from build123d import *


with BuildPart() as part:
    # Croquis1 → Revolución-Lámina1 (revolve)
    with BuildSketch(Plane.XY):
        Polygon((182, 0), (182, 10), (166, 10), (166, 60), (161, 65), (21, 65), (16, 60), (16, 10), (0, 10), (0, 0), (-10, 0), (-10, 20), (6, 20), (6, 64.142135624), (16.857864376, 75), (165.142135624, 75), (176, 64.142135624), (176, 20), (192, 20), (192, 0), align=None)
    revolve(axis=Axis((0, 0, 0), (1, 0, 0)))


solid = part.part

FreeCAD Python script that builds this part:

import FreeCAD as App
import Part
import Sketcher


def add_polygon(sketch, points):
    """Adds a closed chain of lines whose ends are joined by coincident constraints."""
    first, n = sketch.GeometryCount, len(points)
    for a, b in zip(points, points[1:] + points[:1]):
        sketch.addGeometry(Part.LineSegment(App.Vector(*a, 0), App.Vector(*b, 0)), False)
    for i in range(n):
        sketch.addConstraint(Sketcher.Constraint("Coincident", first + i, 2, first + (i + 1) % n, 1))

doc = App.newDocument("Part")
params = doc.addObject("Spreadsheet::Sheet", "Params")
for row, (alias, value) in enumerate([
    ("sketch1_width", "10 mm"),
    ("sketch1_width2", "16 mm"),
    ("sketch1_width3", "140 mm"),
    ("sketch1_height", "20 mm"),
    ("sketch1_height2", "50 mm"),
    ("revolution_angle", "360 deg"),
], start=1):
    params.set(f"A{row}", alias)
    params.set(f"B{row}", "=" + value)
    params.setAlias(f"B{row}", alias)

body = doc.addObject("PartDesign::Body", "Body")

sketch1 = body.newObject("Sketcher::SketchObject", "Sketch")
sketch1.AttachmentSupport = (doc.getObject("XY_Plane"), [""])
sketch1.MapMode = "FlatFace"
add_polygon(sketch1, [(182, 10), (182, 0), (192, 0), (192, 20), (176, 20), (176, 64), (165, 75), (17, 75), (6, 64), (6, 20), (-10, 20), (-10, 0), (0, 0), (0, 10), (16, 10), (16, 60), (21, 65), (161, 65), (166, 60), (166, 10)])
sketch1.addConstraint([
    Sketcher.Constraint("Vertical", 0),
    Sketcher.Constraint("Horizontal", 1),
    Sketcher.Constraint("Vertical", 2),
    Sketcher.Constraint("Horizontal", 3),
    Sketcher.Constraint("Vertical", 4),
    Sketcher.Constraint("Horizontal", 6),
    Sketcher.Constraint("Vertical", 8),
    Sketcher.Constraint("Horizontal", 9),
    Sketcher.Constraint("Vertical", 10),
    Sketcher.Constraint("Horizontal", 11),
    Sketcher.Constraint("Vertical", 12),
    Sketcher.Constraint("Horizontal", 13),
    Sketcher.Constraint("Vertical", 14),
    Sketcher.Constraint("Horizontal", 16),
    Sketcher.Constraint("Vertical", 18),
    Sketcher.Constraint("Horizontal", 19),
    Sketcher.Constraint("Coincident", 11, 2, -1, 1),
    Sketcher.Constraint("PointOnObject", 0, 2, -1),
    Sketcher.Constraint("Perpendicular", 5, 7),
    Sketcher.Constraint("Parallel", 7, 15),
    Sketcher.Constraint("Perpendicular", 15, 17),
    Sketcher.Constraint("Horizontal", 4, 2, 7, 2),
    Sketcher.Constraint("Horizontal", 3, 2, 8, 2),
    Sketcher.Constraint("Horizontal", 14, 2, 17, 2),
    Sketcher.Constraint("Horizontal", 13, 2, 18, 2),
    Sketcher.Constraint("Equal", 3, 9),
    Sketcher.Constraint("Equal", 1, 11),
    Sketcher.Constraint("Equal", 9, 13),
    Sketcher.Constraint("Equal", 13, 19),
    Sketcher.Constraint("Equal", 11, 0),
    Sketcher.Constraint("Equal", 5, 7),
    Sketcher.Constraint("DistanceX", 1, 1, 1, 2, 10.0),
    Sketcher.Constraint("DistanceX", 3, 2, 3, 1, 16.0),
    Sketcher.Constraint("DistanceX", 16, 1, 16, 2, 140.0),
    Sketcher.Constraint("DistanceY", 2, 1, 2, 2, 20.0),
    Sketcher.Constraint("DistanceY", 14, 1, 14, 2, 50.0),
    Sketcher.Constraint("DistanceX", -1, 1, 0, 2, 182.0),
    Sketcher.Constraint("DistanceY", -1, 1, 5, 2, 75.0),
    Sketcher.Constraint("DistanceX", 6, 2, 6, 1, 148.284271),
])
sketch1.setExpression("Constraints[51]", "Params.sketch1_width")
sketch1.setExpression("Constraints[52]", "Params.sketch1_width2")
sketch1.setExpression("Constraints[53]", "Params.sketch1_width3")
sketch1.setExpression("Constraints[54]", "Params.sketch1_height")
sketch1.setExpression("Constraints[55]", "Params.sketch1_height2")
revolution = body.newObject("PartDesign::Revolution", "Revolution")
revolution.Profile = sketch1
revolution.ReferenceAxis = (sketch1, ["H_Axis"])
revolution.setExpression("Angle", "Params.revolution_angle")

doc.recompute()
